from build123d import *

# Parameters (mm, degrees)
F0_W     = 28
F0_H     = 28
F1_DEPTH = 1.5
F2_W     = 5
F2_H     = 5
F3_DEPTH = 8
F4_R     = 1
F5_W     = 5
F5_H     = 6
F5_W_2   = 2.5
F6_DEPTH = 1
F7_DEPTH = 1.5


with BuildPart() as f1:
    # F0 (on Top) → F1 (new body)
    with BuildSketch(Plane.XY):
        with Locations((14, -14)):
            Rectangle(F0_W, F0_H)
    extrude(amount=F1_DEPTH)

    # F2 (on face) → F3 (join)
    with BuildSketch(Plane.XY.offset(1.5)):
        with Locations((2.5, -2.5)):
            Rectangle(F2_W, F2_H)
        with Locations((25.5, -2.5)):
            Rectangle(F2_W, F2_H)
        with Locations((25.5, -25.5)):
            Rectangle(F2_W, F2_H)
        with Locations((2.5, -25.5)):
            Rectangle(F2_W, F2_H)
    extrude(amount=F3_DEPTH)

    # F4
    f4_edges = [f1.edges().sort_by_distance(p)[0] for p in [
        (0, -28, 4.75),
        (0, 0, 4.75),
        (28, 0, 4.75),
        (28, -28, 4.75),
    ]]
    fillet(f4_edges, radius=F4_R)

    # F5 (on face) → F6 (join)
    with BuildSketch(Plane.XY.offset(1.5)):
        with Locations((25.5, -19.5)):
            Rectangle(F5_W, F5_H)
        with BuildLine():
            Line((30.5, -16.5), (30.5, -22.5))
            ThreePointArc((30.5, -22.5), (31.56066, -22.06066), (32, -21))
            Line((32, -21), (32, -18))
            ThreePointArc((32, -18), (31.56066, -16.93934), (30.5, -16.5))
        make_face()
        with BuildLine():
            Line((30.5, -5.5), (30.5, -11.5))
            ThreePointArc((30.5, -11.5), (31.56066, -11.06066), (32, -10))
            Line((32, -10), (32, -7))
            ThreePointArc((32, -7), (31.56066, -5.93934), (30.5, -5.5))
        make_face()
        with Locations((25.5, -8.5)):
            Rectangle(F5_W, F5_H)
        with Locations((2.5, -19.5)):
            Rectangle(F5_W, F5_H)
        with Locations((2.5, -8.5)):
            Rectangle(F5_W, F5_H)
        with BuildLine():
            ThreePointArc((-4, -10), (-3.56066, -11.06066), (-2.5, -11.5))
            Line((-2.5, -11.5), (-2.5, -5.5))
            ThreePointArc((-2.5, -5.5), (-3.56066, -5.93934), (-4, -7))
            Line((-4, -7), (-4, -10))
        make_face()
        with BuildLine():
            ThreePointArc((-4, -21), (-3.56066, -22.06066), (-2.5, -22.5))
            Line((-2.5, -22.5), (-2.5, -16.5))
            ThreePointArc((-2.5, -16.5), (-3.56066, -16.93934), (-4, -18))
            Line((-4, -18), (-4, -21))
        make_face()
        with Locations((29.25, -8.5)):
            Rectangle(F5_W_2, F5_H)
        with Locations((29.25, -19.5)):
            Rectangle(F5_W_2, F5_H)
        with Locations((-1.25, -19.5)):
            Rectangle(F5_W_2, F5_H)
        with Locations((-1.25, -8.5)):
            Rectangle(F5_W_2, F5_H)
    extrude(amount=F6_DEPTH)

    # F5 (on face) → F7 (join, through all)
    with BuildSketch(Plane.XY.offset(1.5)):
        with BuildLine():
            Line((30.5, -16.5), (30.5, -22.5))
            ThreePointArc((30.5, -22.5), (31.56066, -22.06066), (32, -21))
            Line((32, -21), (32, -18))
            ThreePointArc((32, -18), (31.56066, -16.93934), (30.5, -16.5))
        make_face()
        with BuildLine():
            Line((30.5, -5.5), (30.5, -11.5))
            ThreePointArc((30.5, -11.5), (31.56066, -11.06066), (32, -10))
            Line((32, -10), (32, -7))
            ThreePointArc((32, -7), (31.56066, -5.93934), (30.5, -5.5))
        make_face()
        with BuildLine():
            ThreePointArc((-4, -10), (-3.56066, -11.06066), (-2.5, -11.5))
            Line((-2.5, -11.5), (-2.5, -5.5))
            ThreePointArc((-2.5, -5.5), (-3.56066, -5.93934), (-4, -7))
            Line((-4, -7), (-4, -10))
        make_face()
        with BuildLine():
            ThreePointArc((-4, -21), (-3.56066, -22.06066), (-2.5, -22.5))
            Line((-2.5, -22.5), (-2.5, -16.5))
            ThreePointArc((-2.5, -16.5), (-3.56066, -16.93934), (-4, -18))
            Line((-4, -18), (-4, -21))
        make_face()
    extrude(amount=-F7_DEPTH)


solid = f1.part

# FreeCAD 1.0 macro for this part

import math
import FreeCAD as App
import Part
import Sketcher

V = App.Vector


def edges_at(feature, points):
    """Names of the edges that pass closest to the given points."""
    edges = feature.Shape.Edges
    near = lambda p: min(range(len(edges)), key=lambda i: edges[i].distToShape(Part.Vertex(*p))[0])
    return sorted({f"Edge{near(p) + 1}" for p in points})


def add_polygon(sketch, points):
    """Adds a closed chain of lines whose ends are joined by coincident constraints."""
    first, n = sketch.GeometryCount, len(points)
    for a, b in zip(points, points[1:] + points[:1]):
        sketch.addGeometry(Part.LineSegment(App.Vector(*a, 0), App.Vector(*b, 0)), False)
    for i in range(n):
        sketch.addConstraint(Sketcher.Constraint("Coincident", first + i, 2, first + (i + 1) % n, 1))

doc = App.newDocument("Part")
body = doc.addObject("PartDesign::Body", "Body")

# Sketch on XY plane
sketch1 = doc.addObject("Sketcher::SketchObject", "Sketch")
body.addObject(sketch1)
sketch1.AttachmentSupport = (doc.XY_Plane, [""])
sketch1.MapMode = "FlatFace"
add_polygon(sketch1, [(0, 0), (0, -28), (28, -28), (28, 0)])  # lines 0-3
sketch1.addConstraint([
    Sketcher.Constraint("Vertical", 0),
    Sketcher.Constraint("Horizontal", 1),
    Sketcher.Constraint("Vertical", 2),
    Sketcher.Constraint("Horizontal", 3),
    Sketcher.Constraint("Coincident", 3, 2, -1, 1),
    Sketcher.Constraint("Equal", 3, 0),
    Sketcher.Constraint("DistanceX", 1, 1, 1, 2, 28.0),
])
pad1 = doc.addObject("PartDesign::Pad", "Pad")
body.addObject(pad1)
pad1.Profile = sketch1
pad1.Length = 1.5

# Sketch on XY plane
sketch2 = doc.addObject("Sketcher::SketchObject", "Sketch001")
body.addObject(sketch2)
sketch2.AttachmentSupport = (doc.XY_Plane, [""])
sketch2.MapMode = "FlatFace"
sketch2.AttachmentOffset = App.Placement(V(0, 0, 1.5), App.Rotation())
add_polygon(sketch2, [(0, 0), (0, -5), (5, -5), (5, 0)])  # lines 0-3
add_polygon(sketch2, [(23, 0), (23, -5), (28, -5), (28, 0)])  # lines 4-7
add_polygon(sketch2, [(23, -23), (23, -28), (28, -28), (28, -23)])  # lines 8-11
add_polygon(sketch2, [(0, -23), (0, -28), (5, -28), (5, -23)])  # lines 12-15
sketch2.addConstraint([
    Sketcher.Constraint("Vertical", 0),
    Sketcher.Constraint("Horizontal", 1),
    Sketcher.Constraint("Vertical", 2),
    Sketcher.Constraint("Horizontal", 3),
    Sketcher.Constraint("Vertical", 4),
    Sketcher.Constraint("Horizontal", 5),
    Sketcher.Constraint("Vertical", 6),
    Sketcher.Constraint("Horizontal", 7),
    Sketcher.Constraint("Vertical", 8),
    Sketcher.Constraint("Horizontal", 9),
    Sketcher.Constraint("Vertical", 10),
    Sketcher.Constraint("Horizontal", 11),
    Sketcher.Constraint("Vertical", 12),
    Sketcher.Constraint("Horizontal", 13),
    Sketcher.Constraint("Vertical", 14),
    Sketcher.Constraint("Horizontal", 15),
    Sketcher.Constraint("Coincident", 3, 2, -1, 1),
    Sketcher.Constraint("PointOnObject", 6, 2, -1),
    Sketcher.Constraint("PointOnObject", 12, 2, -2),
    Sketcher.Constraint("Horizontal", 1, 2, 4, 2),
    Sketcher.Constraint("Horizontal", 9, 2, 12, 2),
    Sketcher.Constraint("Horizontal", 11, 2, 14, 2),
    Sketcher.Constraint("Vertical", 7, 2, 8, 2),
    Sketcher.Constraint("Vertical", 6, 2, 9, 2),
    Sketcher.Constraint("Vertical", 2, 2, 13, 2),
    Sketcher.Constraint("Equal", 3, 5),
    Sketcher.Constraint("Equal", 15, 0),
    Sketcher.Constraint("Equal", 6, 8),
    Sketcher.Constraint("DistanceX", 1, 1, 1, 2, 5.0),
    Sketcher.Constraint("DistanceX", -1, 1, 4, 2, 23.0),
    Sketcher.Constraint("DistanceY", 8, 2, -1, 1, 28.0),
])
pad2 = doc.addObject("PartDesign::Pad", "Pad001")
body.addObject(pad2)
pad2.Profile = sketch2
pad2.Length = 8
doc.recompute()

fillet = doc.addObject("PartDesign::Fillet", "Fillet")
body.addObject(fillet)
fillet.Base = (pad2, edges_at(pad2, [
    (0, -28, 4.75),
    (0, 0, 4.75),
    (28, 0, 4.75),
    (28, -28, 4.75),
]))
fillet.Radius = 1

# Sketch on XY plane
sketch3 = doc.addObject("Sketcher::SketchObject", "Sketch002")
body.addObject(sketch3)
sketch3.AttachmentSupport = (doc.XY_Plane, [""])
sketch3.MapMode = "FlatFace"
sketch3.AttachmentOffset = App.Placement(V(0, 0, 1.5), App.Rotation())
sketch3.addGeometry([
    Part.LineSegment(V(23, -16.5, 0), V(23, -22.5, 0)),  # 0
    Part.LineSegment(V(23, -22.5, 0), V(30.5, -22.5, 0)),  # 1
    Part.ArcOfCircle(Part.Circle(V(30.5, -21, 0), V(0, 0, 1), 1.5), math.radians(-90), math.radians(0)),  # 2
    Part.LineSegment(V(32, -21, 0), V(32, -18, 0)),  # 3
    Part.ArcOfCircle(Part.Circle(V(30.5, -18, 0), V(0, 0, 1), 1.5), math.radians(0), math.radians(90)),  # 4
    Part.LineSegment(V(30.5, -16.5, 0), V(23, -16.5, 0)),  # 5
    Part.ArcOfCircle(Part.Circle(V(30.5, -10, 0), V(0, 0, 1), 1.5), math.radians(-90), math.radians(0)),  # 6
    Part.LineSegment(V(32, -10, 0), V(32, -7, 0)),  # 7
    Part.ArcOfCircle(Part.Circle(V(30.5, -7, 0), V(0, 0, 1), 1.5), math.radians(0), math.radians(90)),  # 8
    Part.LineSegment(V(30.5, -5.5, 0), V(23, -5.5, 0)),  # 9
    Part.LineSegment(V(23, -5.5, 0), V(23, -11.5, 0)),  # 10
    Part.LineSegment(V(23, -11.5, 0), V(30.5, -11.5, 0)),  # 11
    Part.LineSegment(V(5, -22.5, 0), V(5, -16.5, 0)),  # 12
    Part.LineSegment(V(5, -16.5, 0), V(-2.5, -16.5, 0)),  # 13
    Part.ArcOfCircle(Part.Circle(V(-2.5, -18, 0), V(0, 0, 1), 1.5), math.radians(90), math.radians(180)),  # 14
    Part.LineSegment(V(-4, -18, 0), V(-4, -21, 0)),  # 15
    Part.ArcOfCircle(Part.Circle(V(-2.5, -21, 0), V(0, 0, 1), 1.5), math.radians(-180), math.radians(-90)),  # 16
    Part.LineSegment(V(-2.5, -22.5, 0), V(5, -22.5, 0)),  # 17
    Part.LineSegment(V(5, -11.5, 0), V(5, -5.5, 0)),  # 18
    Part.LineSegment(V(5, -5.5, 0), V(-2.5, -5.5, 0)),  # 19
    Part.ArcOfCircle(Part.Circle(V(-2.5, -7, 0), V(0, 0, 1), 1.5), math.radians(90), math.radians(180)),  # 20
    Part.LineSegment(V(-4, -7, 0), V(-4, -10, 0)),  # 21
    Part.ArcOfCircle(Part.Circle(V(-2.5, -10, 0), V(0, 0, 1), 1.5), math.radians(-180), math.radians(-90)),  # 22
    Part.LineSegment(V(-2.5, -11.5, 0), V(5, -11.5, 0)),  # 23
], False)
sketch3.addConstraint([
    Sketcher.Constraint("Coincident", 0, 2, 1, 1),
    Sketcher.Constraint("Tangent", 1, 2, 2, 1),
    Sketcher.Constraint("Tangent", 2, 2, 3, 1),
    Sketcher.Constraint("Tangent", 3, 2, 4, 1),
    Sketcher.Constraint("Tangent", 4, 2, 5, 1),
    Sketcher.Constraint("Coincident", 5, 2, 0, 1),
    Sketcher.Constraint("Tangent", 6, 2, 7, 1),
    Sketcher.Constraint("Tangent", 7, 2, 8, 1),
    Sketcher.Constraint("Tangent", 8, 2, 9, 1),
    Sketcher.Constraint("Coincident", 9, 2, 10, 1),
    Sketcher.Constraint("Coincident", 10, 2, 11, 1),
    Sketcher.Constraint("Tangent", 11, 2, 6, 1),
    Sketcher.Constraint("Coincident", 12, 2, 13, 1),
    Sketcher.Constraint("Tangent", 13, 2, 14, 1),
    Sketcher.Constraint("Tangent", 14, 2, 15, 1),
    Sketcher.Constraint("Tangent", 15, 2, 16, 1),
    Sketcher.Constraint("Tangent", 16, 2, 17, 1),
    Sketcher.Constraint("Coincident", 17, 2, 12, 1),
    Sketcher.Constraint("Coincident", 18, 2, 19, 1),
    Sketcher.Constraint("Tangent", 19, 2, 20, 1),
    Sketcher.Constraint("Tangent", 20, 2, 21, 1),
    Sketcher.Constraint("Tangent", 21, 2, 22, 1),
    Sketcher.Constraint("Tangent", 22, 2, 23, 1),
    Sketcher.Constraint("Coincident", 23, 2, 18, 1),
    Sketcher.Constraint("Vertical", 0),
    Sketcher.Constraint("Horizontal", 1),
    Sketcher.Constraint("Vertical", 3),
    Sketcher.Constraint("Horizontal", 5),
    Sketcher.Constraint("Vertical", 7),
    Sketcher.Constraint("Horizontal", 9),
    Sketcher.Constraint("Vertical", 10),
    Sketcher.Constraint("Horizontal", 11),
    Sketcher.Constraint("Vertical", 12),
    Sketcher.Constraint("Horizontal", 13),
    Sketcher.Constraint("Vertical", 15),
    Sketcher.Constraint("Horizontal", 17),
    Sketcher.Constraint("Vertical", 18),
    Sketcher.Constraint("Horizontal", 19),
    Sketcher.Constraint("Vertical", 21),
    Sketcher.Constraint("Horizontal", 23),
    Sketcher.Constraint("Equal", 2, 4),
    Sketcher.Constraint("Equal", 4, 6),
    Sketcher.Constraint("Equal", 6, 8),
    Sketcher.Constraint("Equal", 8, 14),
    Sketcher.Constraint("Equal", 14, 16),
    Sketcher.Constraint("Equal", 16, 20),
    Sketcher.Constraint("Equal", 20, 22),
    Sketcher.Constraint("Horizontal", 4, 3, 14, 3),
    Sketcher.Constraint("Horizontal", 2, 3, 16, 3),
    Sketcher.Constraint("Horizontal", 8, 3, 20, 3),
    Sketcher.Constraint("Horizontal", 6, 3, 22, 3),
    Sketcher.Constraint("Vertical", 4, 3, 6, 3),
    Sketcher.Constraint("Vertical", 16, 3, 20, 3),
    Sketcher.Constraint("Vertical", 5, 2, 9, 2),
    Sketcher.Constraint("Vertical", 17, 2, 18, 2),
    Sketcher.Constraint("Equal", 11, 13),
    Sketcher.Constraint("Equal", 3, 7),
    Sketcher.Constraint("Radius", 2, 1.500001),
    Sketcher.Constraint("DistanceY", 0, 2, 0, 1, 6.0),
    Sketcher.Constraint("DistanceX", 1, 1, 1, 2, 7.5),
    Sketcher.Constraint("DistanceY", 2, 3, -1, 1, 20.999999),
    Sketcher.Constraint("DistanceY", 6, 3, -1, 1, 9.999999),
    Sketcher.Constraint("DistanceX", -1, 1, 0, 2, 23.0),
    Sketcher.Constraint("DistanceX", -1, 1, 12, 2, 5.0),
])
pad3 = doc.addObject("PartDesign::Pad", "Pad002")
body.addObject(pad3)
pad3.Profile = sketch3
pad3.Length = 1

# Sketch on XY plane
sketch4 = doc.addObject("Sketcher::SketchObject", "Sketch003")
body.addObject(sketch4)
sketch4.AttachmentSupport = (doc.XY_Plane, [""])
sketch4.MapMode = "FlatFace"
sketch4.AttachmentOffset = App.Placement(V(0, 0, 1.5), App.Rotation())
sketch4.addGeometry([
    Part.LineSegment(V(30.5, -16.5, 0), V(30.5, -22.5, 0)),  # 0
    Part.ArcOfCircle(Part.Circle(V(30.5, -21, 0), V(0, 0, 1), 1.5), math.radians(-90), math.radians(0)),  # 1
    Part.LineSegment(V(32, -21, 0), V(32, -18, 0)),  # 2
    Part.ArcOfCircle(Part.Circle(V(30.5, -18, 0), V(0, 0, 1), 1.5), math.radians(0), math.radians(90)),  # 3
    Part.LineSegment(V(30.5, -5.5, 0), V(30.5, -11.5, 0)),  # 4
    Part.ArcOfCircle(Part.Circle(V(30.5, -10, 0), V(0, 0, 1), 1.5), math.radians(-90), math.radians(0)),  # 5
    Part.LineSegment(V(32, -10, 0), V(32, -7, 0)),  # 6
    Part.ArcOfCircle(Part.Circle(V(30.5, -7, 0), V(0, 0, 1), 1.5), math.radians(0), math.radians(90)),  # 7
    Part.ArcOfCircle(Part.Circle(V(-2.5, -10, 0), V(0, 0, 1), 1.5), math.radians(-180), math.radians(-90)),  # 8
    Part.LineSegment(V(-2.5, -11.5, 0), V(-2.5, -5.5, 0)),  # 9
    Part.ArcOfCircle(Part.Circle(V(-2.5, -7, 0), V(0, 0, 1), 1.5), math.radians(90), math.radians(180)),  # 10
    Part.LineSegment(V(-4, -7, 0), V(-4, -10, 0)),  # 11
    Part.ArcOfCircle(Part.Circle(V(-2.5, -21, 0), V(0, 0, 1), 1.5), math.radians(-180), math.radians(-90)),  # 12
    Part.LineSegment(V(-2.5, -22.5, 0), V(-2.5, -16.5, 0)),  # 13
    Part.ArcOfCircle(Part.Circle(V(-2.5, -18, 0), V(0, 0, 1), 1.5), math.radians(90), math.radians(180)),  # 14
    Part.LineSegment(V(-4, -18, 0), V(-4, -21, 0)),  # 15
], False)
sketch4.addConstraint([
    Sketcher.Constraint("Coincident", 0, 2, 1, 1),
    Sketcher.Constraint("Tangent", 1, 2, 2, 1),
    Sketcher.Constraint("Tangent", 2, 2, 3, 1),
    Sketcher.Constraint("Coincident", 3, 2, 0, 1),
    Sketcher.Constraint("Coincident", 4, 2, 5, 1),
    Sketcher.Constraint("Tangent", 5, 2, 6, 1),
    Sketcher.Constraint("Tangent", 6, 2, 7, 1),
    Sketcher.Constraint("Coincident", 7, 2, 4, 1),
    Sketcher.Constraint("Coincident", 8, 2, 9, 1),
    Sketcher.Constraint("Coincident", 9, 2, 10, 1),
    Sketcher.Constraint("Tangent", 10, 2, 11, 1),
    Sketcher.Constraint("Tangent", 11, 2, 8, 1),
    Sketcher.Constraint("Coincident", 12, 2, 13, 1),
    Sketcher.Constraint("Coincident", 13, 2, 14, 1),
    Sketcher.Constraint("Tangent", 14, 2, 15, 1),
    Sketcher.Constraint("Tangent", 15, 2, 12, 1),
    Sketcher.Constraint("Vertical", 0),
    Sketcher.Constraint("Vertical", 2),
    Sketcher.Constraint("Vertical", 4),
    Sketcher.Constraint("Vertical", 6),
    Sketcher.Constraint("Vertical", 9),
    Sketcher.Constraint("Vertical", 11),
    Sketcher.Constraint("Vertical", 13),
    Sketcher.Constraint("Vertical", 15),
    Sketcher.Constraint("Equal", 1, 3),
    Sketcher.Constraint("Equal", 3, 5),
    Sketcher.Constraint("Equal", 5, 7),
    Sketcher.Constraint("Equal", 7, 8),
    Sketcher.Constraint("Equal", 8, 10),
    Sketcher.Constraint("Equal", 10, 12),
    Sketcher.Constraint("Equal", 12, 14),
    Sketcher.Constraint("Horizontal", 5, 3, 8, 3),
    Sketcher.Constraint("Horizontal", 7, 3, 10, 3),
    Sketcher.Constraint("Horizontal", 1, 3, 12, 3),
    Sketcher.Constraint("Horizontal", 3, 3, 14, 3),
    Sketcher.Constraint("Vertical", 3, 3, 5, 3),
    Sketcher.Constraint("Vertical", 10, 3, 12, 3),
    Sketcher.Constraint("Vertical", 7, 3, 0, 2),
    Sketcher.Constraint("Vertical", 3, 2, 4, 2),
    Sketcher.Constraint("Vertical", 14, 3, 8, 2),
    Sketcher.Constraint("Vertical", 9, 2, 12, 2),
    Sketcher.Constraint("Equal", 0, 4),
    Sketcher.Constraint("Radius", 1, 1.500001),
    Sketcher.Constraint("DistanceY", 0, 2, 0, 1, 6.0),
    Sketcher.Constraint("DistanceY", 1, 3, -1, 1, 20.999999),
    Sketcher.Constraint("DistanceY", 5, 3, -1, 1, 9.999999),
    Sketcher.Constraint("DistanceX", -1, 1, 1, 2, 32.0),
    Sketcher.Constraint("DistanceX", 10, 2, -1, 1, 4.0),
])
pad4 = doc.addObject("PartDesign::Pad", "Pad003")
body.addObject(pad4)
pad4.Profile = sketch4
pad4.Type = "UpToLast"
pad4.Reversed = True

doc.recompute()
